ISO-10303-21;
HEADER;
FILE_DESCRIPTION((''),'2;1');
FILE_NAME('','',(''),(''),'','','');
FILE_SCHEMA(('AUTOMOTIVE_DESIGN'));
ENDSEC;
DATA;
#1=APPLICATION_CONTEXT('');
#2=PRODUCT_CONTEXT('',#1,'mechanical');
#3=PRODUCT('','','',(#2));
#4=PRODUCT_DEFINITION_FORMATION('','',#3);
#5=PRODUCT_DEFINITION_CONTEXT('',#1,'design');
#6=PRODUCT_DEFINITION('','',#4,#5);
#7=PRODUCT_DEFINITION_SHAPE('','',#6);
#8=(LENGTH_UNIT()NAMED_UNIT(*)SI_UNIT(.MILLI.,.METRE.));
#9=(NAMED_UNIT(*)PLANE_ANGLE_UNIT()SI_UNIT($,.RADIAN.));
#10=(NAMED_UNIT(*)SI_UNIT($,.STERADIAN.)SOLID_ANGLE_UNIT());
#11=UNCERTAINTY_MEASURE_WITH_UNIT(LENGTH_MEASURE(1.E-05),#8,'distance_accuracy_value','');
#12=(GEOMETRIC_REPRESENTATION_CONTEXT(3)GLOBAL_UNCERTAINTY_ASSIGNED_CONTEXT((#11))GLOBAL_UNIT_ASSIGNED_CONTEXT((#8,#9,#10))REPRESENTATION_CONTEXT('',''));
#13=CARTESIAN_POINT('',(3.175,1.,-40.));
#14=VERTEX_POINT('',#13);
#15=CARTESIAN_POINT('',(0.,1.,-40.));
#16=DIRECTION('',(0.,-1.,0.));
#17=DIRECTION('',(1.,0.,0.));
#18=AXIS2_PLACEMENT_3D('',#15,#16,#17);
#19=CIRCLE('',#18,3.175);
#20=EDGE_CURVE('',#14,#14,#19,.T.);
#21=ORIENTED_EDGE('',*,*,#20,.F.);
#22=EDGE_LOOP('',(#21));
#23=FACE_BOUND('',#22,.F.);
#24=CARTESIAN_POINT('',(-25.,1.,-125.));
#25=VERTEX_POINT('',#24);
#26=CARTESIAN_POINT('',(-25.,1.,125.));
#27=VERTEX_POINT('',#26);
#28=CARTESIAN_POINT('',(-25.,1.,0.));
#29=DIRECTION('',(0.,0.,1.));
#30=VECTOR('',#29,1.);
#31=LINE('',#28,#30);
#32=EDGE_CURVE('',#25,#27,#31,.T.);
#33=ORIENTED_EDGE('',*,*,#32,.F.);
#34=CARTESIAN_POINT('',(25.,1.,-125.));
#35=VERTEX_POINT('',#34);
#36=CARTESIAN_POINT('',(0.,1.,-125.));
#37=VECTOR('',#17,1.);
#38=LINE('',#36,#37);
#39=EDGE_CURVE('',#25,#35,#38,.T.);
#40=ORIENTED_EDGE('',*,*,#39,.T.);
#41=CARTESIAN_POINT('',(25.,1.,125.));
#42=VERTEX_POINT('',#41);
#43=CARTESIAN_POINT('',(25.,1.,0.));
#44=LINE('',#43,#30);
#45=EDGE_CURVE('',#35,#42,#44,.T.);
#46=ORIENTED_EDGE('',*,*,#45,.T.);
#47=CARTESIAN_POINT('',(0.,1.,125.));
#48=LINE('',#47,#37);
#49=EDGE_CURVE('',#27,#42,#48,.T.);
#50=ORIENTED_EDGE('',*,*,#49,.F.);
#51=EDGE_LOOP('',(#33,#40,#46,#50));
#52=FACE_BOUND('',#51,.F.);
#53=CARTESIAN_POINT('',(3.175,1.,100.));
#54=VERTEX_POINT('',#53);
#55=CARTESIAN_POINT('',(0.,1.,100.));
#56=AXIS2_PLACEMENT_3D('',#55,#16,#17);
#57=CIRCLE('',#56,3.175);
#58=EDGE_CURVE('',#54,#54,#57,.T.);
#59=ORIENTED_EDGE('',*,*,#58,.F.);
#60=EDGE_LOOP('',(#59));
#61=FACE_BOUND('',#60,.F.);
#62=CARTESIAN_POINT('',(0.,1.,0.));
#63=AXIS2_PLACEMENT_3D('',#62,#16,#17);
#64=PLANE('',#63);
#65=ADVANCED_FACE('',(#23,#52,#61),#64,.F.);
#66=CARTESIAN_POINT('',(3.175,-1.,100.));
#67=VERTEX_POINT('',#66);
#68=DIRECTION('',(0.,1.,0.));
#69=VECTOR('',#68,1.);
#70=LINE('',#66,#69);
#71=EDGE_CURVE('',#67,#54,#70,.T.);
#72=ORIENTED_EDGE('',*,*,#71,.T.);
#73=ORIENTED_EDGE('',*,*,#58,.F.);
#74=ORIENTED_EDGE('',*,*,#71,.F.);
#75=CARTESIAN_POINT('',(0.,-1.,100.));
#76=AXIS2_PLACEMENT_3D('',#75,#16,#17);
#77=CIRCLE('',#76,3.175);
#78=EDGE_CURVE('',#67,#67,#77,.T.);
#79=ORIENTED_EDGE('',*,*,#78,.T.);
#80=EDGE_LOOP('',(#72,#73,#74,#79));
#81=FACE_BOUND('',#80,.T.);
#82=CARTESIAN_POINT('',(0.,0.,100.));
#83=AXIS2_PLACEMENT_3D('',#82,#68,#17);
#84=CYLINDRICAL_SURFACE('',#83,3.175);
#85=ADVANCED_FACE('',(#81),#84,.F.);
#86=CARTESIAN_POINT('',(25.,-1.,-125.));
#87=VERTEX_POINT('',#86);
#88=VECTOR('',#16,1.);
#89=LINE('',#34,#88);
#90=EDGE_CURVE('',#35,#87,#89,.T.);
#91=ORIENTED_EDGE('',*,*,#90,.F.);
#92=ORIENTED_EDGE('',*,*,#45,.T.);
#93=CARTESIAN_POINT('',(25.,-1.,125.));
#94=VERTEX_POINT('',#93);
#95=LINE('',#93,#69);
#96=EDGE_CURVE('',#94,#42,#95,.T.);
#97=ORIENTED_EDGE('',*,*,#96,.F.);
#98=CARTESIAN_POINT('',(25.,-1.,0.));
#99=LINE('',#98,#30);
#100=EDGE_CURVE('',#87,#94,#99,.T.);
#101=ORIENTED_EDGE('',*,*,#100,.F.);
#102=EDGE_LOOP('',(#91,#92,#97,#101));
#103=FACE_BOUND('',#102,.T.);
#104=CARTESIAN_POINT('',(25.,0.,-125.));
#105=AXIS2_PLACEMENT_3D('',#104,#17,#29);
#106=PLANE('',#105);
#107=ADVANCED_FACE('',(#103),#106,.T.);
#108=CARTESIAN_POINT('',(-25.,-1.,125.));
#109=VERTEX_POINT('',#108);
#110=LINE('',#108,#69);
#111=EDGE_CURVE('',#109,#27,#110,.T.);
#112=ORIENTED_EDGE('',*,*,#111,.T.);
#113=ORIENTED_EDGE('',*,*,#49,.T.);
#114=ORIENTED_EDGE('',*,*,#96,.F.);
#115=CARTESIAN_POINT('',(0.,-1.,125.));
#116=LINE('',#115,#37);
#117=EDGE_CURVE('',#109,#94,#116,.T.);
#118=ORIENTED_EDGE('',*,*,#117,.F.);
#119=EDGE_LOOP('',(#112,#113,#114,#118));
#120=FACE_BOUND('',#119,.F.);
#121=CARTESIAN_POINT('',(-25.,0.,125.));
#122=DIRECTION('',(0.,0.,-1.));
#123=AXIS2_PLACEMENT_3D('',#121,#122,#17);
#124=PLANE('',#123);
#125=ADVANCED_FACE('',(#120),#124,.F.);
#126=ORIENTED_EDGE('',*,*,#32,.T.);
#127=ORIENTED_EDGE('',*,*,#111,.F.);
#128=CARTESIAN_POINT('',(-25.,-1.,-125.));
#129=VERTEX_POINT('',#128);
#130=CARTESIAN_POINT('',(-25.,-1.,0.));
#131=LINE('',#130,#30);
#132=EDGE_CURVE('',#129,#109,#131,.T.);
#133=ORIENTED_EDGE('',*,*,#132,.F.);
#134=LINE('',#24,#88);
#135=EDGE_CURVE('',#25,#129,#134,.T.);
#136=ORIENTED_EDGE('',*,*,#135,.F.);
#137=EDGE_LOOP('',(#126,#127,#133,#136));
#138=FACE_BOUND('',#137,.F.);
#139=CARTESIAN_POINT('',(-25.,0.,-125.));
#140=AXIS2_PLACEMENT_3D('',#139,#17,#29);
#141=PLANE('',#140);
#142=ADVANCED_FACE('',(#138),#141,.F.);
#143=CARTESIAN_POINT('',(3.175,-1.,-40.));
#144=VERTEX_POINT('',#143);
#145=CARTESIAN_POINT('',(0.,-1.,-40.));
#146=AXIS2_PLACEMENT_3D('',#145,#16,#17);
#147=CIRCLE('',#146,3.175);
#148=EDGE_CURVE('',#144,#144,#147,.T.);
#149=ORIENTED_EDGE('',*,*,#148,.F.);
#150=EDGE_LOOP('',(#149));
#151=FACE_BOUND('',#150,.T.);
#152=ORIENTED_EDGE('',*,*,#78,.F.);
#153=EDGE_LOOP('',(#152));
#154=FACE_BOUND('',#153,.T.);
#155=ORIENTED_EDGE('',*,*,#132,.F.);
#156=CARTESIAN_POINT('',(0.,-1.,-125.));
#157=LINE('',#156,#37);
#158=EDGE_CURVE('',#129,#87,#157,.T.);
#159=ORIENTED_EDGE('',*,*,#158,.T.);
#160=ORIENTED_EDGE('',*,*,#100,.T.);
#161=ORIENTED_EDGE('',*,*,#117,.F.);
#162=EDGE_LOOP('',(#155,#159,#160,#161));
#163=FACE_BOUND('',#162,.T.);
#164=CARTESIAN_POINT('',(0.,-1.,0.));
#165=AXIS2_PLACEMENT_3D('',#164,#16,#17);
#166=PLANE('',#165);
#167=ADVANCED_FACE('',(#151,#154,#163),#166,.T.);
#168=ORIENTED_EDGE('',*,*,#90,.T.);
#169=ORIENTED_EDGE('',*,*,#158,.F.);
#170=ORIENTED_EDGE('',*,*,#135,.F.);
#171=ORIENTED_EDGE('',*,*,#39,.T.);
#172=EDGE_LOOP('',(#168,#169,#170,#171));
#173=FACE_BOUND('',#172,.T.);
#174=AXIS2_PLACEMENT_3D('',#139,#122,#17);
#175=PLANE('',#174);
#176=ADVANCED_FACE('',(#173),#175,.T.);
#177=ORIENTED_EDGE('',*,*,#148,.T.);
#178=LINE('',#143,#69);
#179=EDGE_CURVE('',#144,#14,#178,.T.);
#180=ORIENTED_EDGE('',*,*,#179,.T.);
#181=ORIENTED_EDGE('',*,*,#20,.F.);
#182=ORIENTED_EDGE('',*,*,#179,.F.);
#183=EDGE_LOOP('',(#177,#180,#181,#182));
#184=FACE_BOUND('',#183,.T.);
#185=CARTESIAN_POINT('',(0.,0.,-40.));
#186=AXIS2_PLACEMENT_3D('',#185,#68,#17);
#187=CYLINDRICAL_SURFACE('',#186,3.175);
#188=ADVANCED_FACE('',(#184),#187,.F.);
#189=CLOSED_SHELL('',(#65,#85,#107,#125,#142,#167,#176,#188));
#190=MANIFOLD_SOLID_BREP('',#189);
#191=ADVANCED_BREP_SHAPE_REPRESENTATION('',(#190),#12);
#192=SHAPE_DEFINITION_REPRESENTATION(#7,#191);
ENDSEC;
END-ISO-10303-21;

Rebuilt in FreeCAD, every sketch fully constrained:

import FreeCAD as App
import Part
import Sketcher

doc = App.newDocument("Part")
body = doc.addObject("PartDesign::Body", "Body")

# Sketch on XZ plane
sketch1 = doc.addObject("Sketcher::SketchObject", "Sketch")
body.addObject(sketch1)
sketch1.AttachmentSupport = (doc.XZ_Plane, [""])
sketch1.MapMode = "FlatFace"
sketch1.addGeometry(Part.LineSegment(App.Vector(-25, 125, 0), App.Vector(-25, -125, 0)), False)
sketch1.addGeometry(Part.LineSegment(App.Vector(-25, -125, 0), App.Vector(25, -125, 0)), False)
sketch1.addGeometry(Part.LineSegment(App.Vector(25, -125, 0), App.Vector(25, 125, 0)), False)
sketch1.addGeometry(Part.LineSegment(App.Vector(25, 125, 0), App.Vector(-25, 125, 0)), False)
sketch1.addGeometry(Part.Circle(App.Vector(0, -40, 0), App.Vector(0, 0, 1), 3.2), False)
sketch1.addGeometry(Part.Circle(App.Vector(0, 100, 0), App.Vector(0, 0, 1), 3.2), False)
sketch1.addConstraint(Sketcher.Constraint("Coincident", 0, 2, 1, 1))
sketch1.addConstraint(Sketcher.Constraint("Coincident", 1, 2, 2, 1))
sketch1.addConstraint(Sketcher.Constraint("Coincident", 2, 2, 3, 1))
sketch1.addConstraint(Sketcher.Constraint("Coincident", 3, 2, 0, 1))
sketch1.addConstraint(Sketcher.Constraint("Vertical", 0))
sketch1.addConstraint(Sketcher.Constraint("Horizontal", 1))
sketch1.addConstraint(Sketcher.Constraint("Vertical", 2))
sketch1.addConstraint(Sketcher.Constraint("Horizontal", 3))
sketch1.addConstraint(Sketcher.Constraint("Equal", 4, 5))
sketch1.addConstraint(Sketcher.Constraint("Symmetric", 0, 2, 2, 2, -1, 1))
sketch1.addConstraint(Sketcher.Constraint("PointOnObject", 4, 3, -2))
sketch1.addConstraint(Sketcher.Constraint("PointOnObject", 5, 3, -2))
sketch1.addConstraint(Sketcher.Constraint("Diameter", 4, 6.35))
sketch1.addConstraint(Sketcher.Constraint("DistanceX", 1, 1, 1, 2, 50.0))
sketch1.addConstraint(Sketcher.Constraint("DistanceY", 0, 2, 0, 1, 250.0))
sketch1.addConstraint(Sketcher.Constraint("DistanceY", 4, 3, -1, 1, 40.0))
sketch1.addConstraint(Sketcher.Constraint("DistanceY", -1, 1, 5, 3, 100.0))
pad1 = doc.addObject("PartDesign::Pad", "Pad")
body.addObject(pad1)
pad1.Profile = sketch1
pad1.Length = 2
pad1.Midplane = True

doc.recompute()
